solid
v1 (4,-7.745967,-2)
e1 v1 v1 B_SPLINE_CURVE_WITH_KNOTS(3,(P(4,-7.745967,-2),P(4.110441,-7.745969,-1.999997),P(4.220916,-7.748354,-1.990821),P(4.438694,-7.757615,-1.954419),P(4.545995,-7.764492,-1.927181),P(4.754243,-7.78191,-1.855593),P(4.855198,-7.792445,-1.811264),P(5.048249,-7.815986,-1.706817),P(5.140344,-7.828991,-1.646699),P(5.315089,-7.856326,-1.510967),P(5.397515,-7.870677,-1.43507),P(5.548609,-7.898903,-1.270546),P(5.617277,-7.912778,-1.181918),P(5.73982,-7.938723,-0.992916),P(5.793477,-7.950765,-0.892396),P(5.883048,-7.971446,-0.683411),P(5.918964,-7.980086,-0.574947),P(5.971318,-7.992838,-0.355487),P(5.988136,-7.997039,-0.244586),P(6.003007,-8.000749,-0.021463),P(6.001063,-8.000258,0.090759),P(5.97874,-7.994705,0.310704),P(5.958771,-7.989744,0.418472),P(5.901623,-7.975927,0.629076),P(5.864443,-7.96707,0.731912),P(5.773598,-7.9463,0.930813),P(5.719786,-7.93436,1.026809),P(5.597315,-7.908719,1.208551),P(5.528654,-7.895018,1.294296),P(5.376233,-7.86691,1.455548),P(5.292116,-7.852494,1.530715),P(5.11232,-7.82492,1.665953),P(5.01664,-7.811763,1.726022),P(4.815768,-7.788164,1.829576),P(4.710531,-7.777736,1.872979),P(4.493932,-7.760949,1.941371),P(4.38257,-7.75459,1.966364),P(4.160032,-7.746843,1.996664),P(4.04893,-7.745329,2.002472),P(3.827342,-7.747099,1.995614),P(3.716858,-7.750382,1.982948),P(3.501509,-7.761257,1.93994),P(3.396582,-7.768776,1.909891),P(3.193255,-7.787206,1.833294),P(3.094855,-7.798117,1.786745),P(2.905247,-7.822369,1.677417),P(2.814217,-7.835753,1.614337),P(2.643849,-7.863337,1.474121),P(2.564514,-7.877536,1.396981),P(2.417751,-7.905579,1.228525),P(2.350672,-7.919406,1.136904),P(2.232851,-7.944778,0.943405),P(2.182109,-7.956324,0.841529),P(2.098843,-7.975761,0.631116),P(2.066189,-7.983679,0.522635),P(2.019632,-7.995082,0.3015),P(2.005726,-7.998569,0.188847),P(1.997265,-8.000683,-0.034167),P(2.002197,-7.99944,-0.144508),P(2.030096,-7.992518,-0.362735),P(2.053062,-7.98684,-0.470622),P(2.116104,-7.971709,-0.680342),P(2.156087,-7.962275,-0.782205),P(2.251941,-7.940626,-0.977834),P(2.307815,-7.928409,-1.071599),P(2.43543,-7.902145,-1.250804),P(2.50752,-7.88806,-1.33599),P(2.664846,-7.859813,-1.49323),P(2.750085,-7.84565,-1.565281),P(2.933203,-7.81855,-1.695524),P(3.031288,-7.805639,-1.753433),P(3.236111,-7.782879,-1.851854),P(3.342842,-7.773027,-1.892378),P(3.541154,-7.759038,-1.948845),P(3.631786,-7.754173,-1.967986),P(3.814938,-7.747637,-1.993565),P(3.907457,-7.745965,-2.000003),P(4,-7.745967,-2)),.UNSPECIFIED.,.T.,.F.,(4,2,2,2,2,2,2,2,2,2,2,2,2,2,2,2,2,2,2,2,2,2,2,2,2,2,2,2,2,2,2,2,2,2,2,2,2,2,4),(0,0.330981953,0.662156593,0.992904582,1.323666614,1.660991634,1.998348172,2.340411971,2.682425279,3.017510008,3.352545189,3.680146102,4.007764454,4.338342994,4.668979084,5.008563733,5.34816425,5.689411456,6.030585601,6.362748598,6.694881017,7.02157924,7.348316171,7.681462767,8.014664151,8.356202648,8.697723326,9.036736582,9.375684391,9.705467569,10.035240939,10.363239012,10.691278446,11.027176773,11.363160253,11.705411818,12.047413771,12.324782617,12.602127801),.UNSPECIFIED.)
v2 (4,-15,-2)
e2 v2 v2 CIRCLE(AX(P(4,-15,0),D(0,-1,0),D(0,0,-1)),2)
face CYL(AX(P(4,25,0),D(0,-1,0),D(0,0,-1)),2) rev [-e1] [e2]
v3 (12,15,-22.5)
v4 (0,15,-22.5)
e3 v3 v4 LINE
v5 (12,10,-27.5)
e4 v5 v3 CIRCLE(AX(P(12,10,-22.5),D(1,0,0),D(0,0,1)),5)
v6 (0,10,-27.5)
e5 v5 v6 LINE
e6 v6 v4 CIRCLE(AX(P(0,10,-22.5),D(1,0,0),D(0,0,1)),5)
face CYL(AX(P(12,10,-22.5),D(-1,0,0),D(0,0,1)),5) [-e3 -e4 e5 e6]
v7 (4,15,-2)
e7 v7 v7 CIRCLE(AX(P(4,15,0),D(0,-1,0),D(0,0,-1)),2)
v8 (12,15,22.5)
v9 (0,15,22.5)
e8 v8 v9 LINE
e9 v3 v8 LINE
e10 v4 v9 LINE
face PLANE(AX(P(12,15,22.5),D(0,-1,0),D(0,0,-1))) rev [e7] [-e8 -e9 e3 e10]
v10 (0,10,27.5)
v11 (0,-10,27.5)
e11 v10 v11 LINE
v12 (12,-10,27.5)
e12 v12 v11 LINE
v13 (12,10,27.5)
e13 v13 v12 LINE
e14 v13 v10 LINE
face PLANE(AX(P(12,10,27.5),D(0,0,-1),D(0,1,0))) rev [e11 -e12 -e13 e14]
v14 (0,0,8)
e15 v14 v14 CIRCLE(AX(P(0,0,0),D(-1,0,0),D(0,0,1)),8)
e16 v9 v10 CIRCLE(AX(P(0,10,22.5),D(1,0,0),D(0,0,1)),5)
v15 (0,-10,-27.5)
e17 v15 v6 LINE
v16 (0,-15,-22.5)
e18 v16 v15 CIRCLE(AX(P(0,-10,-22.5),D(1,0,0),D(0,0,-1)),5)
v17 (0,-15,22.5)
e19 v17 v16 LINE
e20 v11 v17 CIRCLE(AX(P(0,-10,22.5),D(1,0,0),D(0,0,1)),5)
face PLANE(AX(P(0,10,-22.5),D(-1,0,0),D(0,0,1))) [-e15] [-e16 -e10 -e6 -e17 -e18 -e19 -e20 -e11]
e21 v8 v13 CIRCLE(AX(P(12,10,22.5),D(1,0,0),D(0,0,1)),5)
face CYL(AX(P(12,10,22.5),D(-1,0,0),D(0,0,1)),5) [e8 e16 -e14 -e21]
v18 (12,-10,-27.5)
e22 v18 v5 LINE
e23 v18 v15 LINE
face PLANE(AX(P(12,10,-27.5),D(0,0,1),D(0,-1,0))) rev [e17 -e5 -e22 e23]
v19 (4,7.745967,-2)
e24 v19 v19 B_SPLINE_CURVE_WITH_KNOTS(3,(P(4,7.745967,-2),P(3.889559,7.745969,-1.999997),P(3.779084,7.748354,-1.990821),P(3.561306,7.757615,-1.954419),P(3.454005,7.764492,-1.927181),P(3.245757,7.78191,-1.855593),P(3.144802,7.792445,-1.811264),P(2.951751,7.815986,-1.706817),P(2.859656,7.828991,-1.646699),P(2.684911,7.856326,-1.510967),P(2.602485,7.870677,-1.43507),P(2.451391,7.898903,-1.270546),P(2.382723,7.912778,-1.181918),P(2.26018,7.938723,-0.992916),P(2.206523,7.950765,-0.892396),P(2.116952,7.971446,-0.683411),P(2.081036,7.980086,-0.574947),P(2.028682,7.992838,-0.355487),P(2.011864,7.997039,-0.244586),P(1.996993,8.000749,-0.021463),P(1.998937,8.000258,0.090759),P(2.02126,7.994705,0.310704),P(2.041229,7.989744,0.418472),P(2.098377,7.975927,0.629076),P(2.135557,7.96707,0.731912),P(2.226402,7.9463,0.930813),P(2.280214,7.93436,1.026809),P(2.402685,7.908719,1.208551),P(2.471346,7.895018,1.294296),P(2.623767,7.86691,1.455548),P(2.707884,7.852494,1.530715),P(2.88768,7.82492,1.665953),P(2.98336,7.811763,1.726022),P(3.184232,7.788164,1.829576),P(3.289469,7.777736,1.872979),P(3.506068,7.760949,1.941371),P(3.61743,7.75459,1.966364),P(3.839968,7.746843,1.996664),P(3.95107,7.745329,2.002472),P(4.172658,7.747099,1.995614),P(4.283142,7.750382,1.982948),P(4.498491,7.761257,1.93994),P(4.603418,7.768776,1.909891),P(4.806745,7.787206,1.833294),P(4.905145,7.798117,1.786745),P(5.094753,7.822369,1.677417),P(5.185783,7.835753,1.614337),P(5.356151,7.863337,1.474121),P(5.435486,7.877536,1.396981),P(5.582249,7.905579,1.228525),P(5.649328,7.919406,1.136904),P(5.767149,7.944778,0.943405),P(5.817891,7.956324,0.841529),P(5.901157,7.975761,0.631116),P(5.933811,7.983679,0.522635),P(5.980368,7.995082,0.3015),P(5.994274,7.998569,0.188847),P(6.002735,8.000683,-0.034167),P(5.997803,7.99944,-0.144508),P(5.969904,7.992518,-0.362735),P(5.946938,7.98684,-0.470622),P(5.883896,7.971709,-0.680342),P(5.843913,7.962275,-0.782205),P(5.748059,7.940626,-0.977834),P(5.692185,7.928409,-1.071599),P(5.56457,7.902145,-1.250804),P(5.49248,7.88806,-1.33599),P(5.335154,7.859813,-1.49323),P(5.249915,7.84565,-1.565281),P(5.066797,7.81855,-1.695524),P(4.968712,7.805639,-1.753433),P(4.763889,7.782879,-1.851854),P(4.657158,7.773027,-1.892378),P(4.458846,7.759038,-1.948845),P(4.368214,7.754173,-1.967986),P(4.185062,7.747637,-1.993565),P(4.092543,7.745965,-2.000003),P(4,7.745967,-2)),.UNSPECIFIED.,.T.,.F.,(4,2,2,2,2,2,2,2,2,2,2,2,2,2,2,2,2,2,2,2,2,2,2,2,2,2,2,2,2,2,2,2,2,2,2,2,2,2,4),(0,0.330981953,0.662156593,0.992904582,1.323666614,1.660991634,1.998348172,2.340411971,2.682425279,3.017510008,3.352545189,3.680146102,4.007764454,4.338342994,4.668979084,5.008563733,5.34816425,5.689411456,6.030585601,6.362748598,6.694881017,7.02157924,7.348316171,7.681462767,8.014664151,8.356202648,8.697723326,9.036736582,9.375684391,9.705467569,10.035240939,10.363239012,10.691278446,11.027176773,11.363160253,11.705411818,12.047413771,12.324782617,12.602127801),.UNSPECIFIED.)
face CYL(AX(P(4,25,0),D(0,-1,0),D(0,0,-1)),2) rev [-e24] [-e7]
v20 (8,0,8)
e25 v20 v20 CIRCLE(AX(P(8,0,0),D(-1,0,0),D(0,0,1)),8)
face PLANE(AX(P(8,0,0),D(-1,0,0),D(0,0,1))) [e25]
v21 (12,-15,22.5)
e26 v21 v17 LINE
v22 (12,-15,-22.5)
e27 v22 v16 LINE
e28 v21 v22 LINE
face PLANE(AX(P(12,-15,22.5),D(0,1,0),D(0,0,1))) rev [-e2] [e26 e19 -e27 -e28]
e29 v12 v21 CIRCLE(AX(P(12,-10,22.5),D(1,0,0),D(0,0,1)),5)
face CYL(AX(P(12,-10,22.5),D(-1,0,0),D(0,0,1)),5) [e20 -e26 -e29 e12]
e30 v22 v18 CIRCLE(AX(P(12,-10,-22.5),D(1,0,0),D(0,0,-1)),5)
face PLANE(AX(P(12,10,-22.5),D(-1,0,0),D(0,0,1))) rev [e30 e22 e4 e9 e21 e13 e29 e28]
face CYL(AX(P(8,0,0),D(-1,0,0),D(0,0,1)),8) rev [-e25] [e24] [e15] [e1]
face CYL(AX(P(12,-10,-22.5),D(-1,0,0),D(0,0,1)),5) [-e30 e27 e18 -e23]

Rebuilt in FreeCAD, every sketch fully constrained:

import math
import FreeCAD as App
import Part
import Sketcher
from FreeCAD import Vector

doc = App.newDocument("Part")
params = doc.addObject("Spreadsheet::Sheet", "Params")
for row, (alias, value) in enumerate([
    ("sketch1_radius", "5 mm"),
    ("sketch1_width", "20 mm"),
    ("sketch1_height", "45 mm"),
    ("pad1_length", "12 mm"),
    ("sketch2_diameter", "16 mm"),
    ("pocket1_length", "8 mm"),
    ("sketch3_diameter", "4 mm"),
    ("pocket2_length", "40 mm"),
], start=1):
    params.set(f"A{row}", alias)
    params.set(f"B{row}", "=" + value)
    params.setAlias(f"B{row}", alias)

body = doc.addObject("PartDesign::Body", "Body")

sketch1 = body.newObject("Sketcher::SketchObject", "Sketch")
sketch1.AttachmentSupport = (doc.getObject("YZ_Plane"), [""])
sketch1.MapMode = "FlatFace"
sketch1.addGeometry([
    Part.LineSegment(Vector(15, -22.5, 0), Vector(15, 22.5, 0)),
    Part.ArcOfCircle(Part.Circle(Vector(10, 22.5, 0), Vector(0, 0, 1), 5), math.radians(0), math.radians(90)),
    Part.LineSegment(Vector(10, 27.5, 0), Vector(-10, 27.5, 0)),
    Part.ArcOfCircle(Part.Circle(Vector(-10, 22.5, 0), Vector(0, 0, 1), 5), math.radians(90), math.radians(180)),
    Part.LineSegment(Vector(-15, 22.5, 0), Vector(-15, -22.5, 0)),
    Part.ArcOfCircle(Part.Circle(Vector(-10, -22.5, 0), Vector(0, 0, 1), 5), math.radians(180), math.radians(270)),
    Part.LineSegment(Vector(-10, -27.5, 0), Vector(10, -27.5, 0)),
    Part.ArcOfCircle(Part.Circle(Vector(10, -22.5, 0), Vector(0, 0, 1), 5), math.radians(-90), math.radians(0)),
], False)
sketch1.addConstraint([
    Sketcher.Constraint("Tangent", 0, 2, 1, 1),
    Sketcher.Constraint("Tangent", 1, 2, 2, 1),
    Sketcher.Constraint("Tangent", 2, 2, 3, 1),
    Sketcher.Constraint("Tangent", 3, 2, 4, 1),
    Sketcher.Constraint("Tangent", 4, 2, 5, 1),
    Sketcher.Constraint("Tangent", 5, 2, 6, 1),
    Sketcher.Constraint("Tangent", 6, 2, 7, 1),
    Sketcher.Constraint("Tangent", 7, 2, 0, 1),
    Sketcher.Constraint("Vertical", 0),
    Sketcher.Constraint("Horizontal", 2),
    Sketcher.Constraint("Vertical", 4),
    Sketcher.Constraint("Horizontal", 6),
    Sketcher.Constraint("Equal", 1, 3),
    Sketcher.Constraint("Equal", 3, 5),
    Sketcher.Constraint("Equal", 5, 7),
    Sketcher.Constraint("Symmetric", 1, 3, 5, 3, -1, 1),
    Sketcher.Constraint("Radius", 1, 5.0),
    Sketcher.Constraint("DistanceX", 2, 2, 2, 1, 20.0),
    Sketcher.Constraint("DistanceY", 0, 1, 0, 2, 45.0),
])
sketch1.setExpression("Constraints[16]", "Params.sketch1_radius")
sketch1.setExpression("Constraints[17]", "Params.sketch1_width")
sketch1.setExpression("Constraints[18]", "Params.sketch1_height")
pad1 = body.newObject("PartDesign::Pad", "Pad")
pad1.Profile = sketch1
pad1.setExpression("Length", "Params.pad1_length")

sketch2 = body.newObject("Sketcher::SketchObject", "Sketch001")
sketch2.AttachmentSupport = (doc.getObject("YZ_Plane"), [""])
sketch2.MapMode = "FlatFace"
sketch2.addGeometry(Part.Circle(Vector(0, 0, 0), Vector(0, 0, 1), 8), False)
sketch2.addConstraint([
    Sketcher.Constraint("Coincident", 0, 3, -1, 1),
    Sketcher.Constraint("Diameter", 0, 16.0),
])
sketch2.setExpression("Constraints[1]", "Params.sketch2_diameter")
pocket1 = body.newObject("PartDesign::Pocket", "Pocket")
pocket1.Profile = sketch2
pocket1.setExpression("Length", "Params.pocket1_length")
pocket1.Reversed = True

sketch3 = body.newObject("Sketcher::SketchObject", "Sketch002")
sketch3.AttachmentSupport = (doc.getObject("XZ_Plane"), [""])
sketch3.MapMode = "FlatFace"
sketch3.AttachmentOffset = App.Placement(Vector(0, 0, 15), App.Rotation())
sketch3.addGeometry(Part.Circle(Vector(4, 0, 0), Vector(0, 0, 1), 2), False)
sketch3.addConstraint([
    Sketcher.Constraint("PointOnObject", 0, 3, -1),
    Sketcher.Constraint("Diameter", 0, 4.0),
    Sketcher.Constraint("DistanceX", -1, 1, 0, 3, 4.0),
])
sketch3.setExpression("Constraints[1]", "Params.sketch3_diameter")
pocket2 = body.newObject("PartDesign::Pocket", "Pocket001")
pocket2.Profile = sketch3
pocket2.setExpression("Length", "Params.pocket2_length")

doc.recompute()
